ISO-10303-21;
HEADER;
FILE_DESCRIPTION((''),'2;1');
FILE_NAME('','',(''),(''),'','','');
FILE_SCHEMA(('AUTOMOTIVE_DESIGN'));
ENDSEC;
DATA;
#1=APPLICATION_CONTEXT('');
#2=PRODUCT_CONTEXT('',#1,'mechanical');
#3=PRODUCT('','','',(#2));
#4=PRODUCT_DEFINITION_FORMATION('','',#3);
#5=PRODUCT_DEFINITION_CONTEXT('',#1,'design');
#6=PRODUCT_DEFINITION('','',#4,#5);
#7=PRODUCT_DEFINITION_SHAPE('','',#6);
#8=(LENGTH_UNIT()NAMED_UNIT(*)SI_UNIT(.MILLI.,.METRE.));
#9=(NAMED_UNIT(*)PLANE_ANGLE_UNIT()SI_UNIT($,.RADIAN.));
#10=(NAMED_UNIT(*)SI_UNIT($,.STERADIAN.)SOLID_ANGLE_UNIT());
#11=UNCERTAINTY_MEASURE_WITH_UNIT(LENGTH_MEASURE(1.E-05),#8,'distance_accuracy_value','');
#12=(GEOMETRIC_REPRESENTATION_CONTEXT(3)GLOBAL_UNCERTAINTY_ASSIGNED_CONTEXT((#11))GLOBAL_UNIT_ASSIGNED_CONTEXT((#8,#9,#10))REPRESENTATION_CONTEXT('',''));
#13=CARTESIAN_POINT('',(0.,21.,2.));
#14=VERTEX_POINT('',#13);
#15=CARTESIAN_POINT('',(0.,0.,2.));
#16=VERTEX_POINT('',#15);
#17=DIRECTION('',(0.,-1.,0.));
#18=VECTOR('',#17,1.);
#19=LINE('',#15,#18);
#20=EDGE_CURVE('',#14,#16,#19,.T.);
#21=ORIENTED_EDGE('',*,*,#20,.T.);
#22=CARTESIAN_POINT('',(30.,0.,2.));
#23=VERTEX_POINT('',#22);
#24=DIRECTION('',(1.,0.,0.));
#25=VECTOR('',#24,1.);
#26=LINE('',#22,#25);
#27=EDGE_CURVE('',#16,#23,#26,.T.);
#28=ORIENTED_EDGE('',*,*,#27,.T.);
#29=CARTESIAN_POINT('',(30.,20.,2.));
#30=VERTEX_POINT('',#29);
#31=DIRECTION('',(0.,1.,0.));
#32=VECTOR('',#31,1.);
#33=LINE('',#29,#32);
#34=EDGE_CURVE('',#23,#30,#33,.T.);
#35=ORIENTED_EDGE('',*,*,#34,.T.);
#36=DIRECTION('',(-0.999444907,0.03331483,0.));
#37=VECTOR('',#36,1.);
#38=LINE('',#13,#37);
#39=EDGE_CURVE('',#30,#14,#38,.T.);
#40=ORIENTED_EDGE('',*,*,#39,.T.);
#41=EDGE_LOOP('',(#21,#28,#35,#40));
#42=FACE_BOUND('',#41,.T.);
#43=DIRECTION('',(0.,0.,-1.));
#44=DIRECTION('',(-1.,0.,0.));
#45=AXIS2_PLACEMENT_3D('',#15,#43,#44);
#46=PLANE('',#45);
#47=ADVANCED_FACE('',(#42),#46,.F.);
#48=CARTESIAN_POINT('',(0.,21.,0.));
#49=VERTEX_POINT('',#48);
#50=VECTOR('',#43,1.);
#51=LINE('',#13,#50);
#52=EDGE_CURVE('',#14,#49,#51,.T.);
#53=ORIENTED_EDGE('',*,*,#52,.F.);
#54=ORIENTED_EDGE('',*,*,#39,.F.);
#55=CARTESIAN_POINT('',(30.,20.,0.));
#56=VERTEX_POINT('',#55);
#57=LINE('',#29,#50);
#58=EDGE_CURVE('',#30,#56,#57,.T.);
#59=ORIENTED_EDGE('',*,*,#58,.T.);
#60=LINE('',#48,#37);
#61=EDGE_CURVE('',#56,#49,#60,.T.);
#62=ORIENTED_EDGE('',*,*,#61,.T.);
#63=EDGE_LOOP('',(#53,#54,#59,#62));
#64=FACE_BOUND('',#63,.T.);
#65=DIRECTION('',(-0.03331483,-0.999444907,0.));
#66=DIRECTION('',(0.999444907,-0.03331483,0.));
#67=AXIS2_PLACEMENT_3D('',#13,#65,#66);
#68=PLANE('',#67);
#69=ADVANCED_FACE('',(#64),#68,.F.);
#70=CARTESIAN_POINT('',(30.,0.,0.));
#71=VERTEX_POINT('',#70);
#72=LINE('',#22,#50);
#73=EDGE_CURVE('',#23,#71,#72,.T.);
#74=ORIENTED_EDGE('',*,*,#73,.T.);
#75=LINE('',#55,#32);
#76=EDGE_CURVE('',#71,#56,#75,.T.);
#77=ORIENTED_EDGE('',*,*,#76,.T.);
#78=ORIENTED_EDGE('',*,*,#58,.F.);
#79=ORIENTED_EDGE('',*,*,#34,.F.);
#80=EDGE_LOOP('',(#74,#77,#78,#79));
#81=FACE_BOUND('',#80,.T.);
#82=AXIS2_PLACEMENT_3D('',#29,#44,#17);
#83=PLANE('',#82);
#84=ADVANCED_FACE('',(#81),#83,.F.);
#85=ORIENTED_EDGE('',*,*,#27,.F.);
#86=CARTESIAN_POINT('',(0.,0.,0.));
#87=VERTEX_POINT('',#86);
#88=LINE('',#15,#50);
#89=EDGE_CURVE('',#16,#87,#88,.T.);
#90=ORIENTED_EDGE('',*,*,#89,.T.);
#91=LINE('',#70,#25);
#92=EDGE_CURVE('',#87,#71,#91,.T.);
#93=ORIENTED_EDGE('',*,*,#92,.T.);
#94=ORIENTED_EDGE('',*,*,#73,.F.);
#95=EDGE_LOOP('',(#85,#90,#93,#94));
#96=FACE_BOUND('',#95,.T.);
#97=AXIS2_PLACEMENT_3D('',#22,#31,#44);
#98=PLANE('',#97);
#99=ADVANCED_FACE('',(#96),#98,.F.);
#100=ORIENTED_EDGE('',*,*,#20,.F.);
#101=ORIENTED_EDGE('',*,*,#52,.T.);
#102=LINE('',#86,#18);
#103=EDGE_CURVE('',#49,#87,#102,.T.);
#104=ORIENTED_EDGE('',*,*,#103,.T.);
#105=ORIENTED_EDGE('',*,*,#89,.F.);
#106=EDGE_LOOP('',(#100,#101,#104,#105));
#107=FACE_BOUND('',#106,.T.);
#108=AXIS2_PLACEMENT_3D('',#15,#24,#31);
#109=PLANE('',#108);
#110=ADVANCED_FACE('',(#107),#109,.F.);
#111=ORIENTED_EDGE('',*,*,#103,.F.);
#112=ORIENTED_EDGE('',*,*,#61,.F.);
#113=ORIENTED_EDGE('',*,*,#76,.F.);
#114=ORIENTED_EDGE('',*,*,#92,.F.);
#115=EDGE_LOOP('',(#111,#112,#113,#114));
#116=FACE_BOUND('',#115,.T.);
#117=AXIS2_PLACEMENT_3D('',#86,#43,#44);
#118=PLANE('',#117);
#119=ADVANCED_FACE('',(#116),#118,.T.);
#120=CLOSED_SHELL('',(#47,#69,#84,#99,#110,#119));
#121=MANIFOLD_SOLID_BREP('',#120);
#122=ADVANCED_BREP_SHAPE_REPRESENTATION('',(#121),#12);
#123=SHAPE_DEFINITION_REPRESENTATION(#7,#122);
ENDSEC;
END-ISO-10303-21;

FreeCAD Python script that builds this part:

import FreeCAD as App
import Part
import Sketcher
Q = App.Units.Quantity


def add_polygon(sketch, points):
    """Adds a closed chain of lines whose ends are joined by coincident constraints."""
    first, n = sketch.GeometryCount, len(points)
    for a, b in zip(points, points[1:] + points[:1]):
        sketch.addGeometry(Part.LineSegment(App.Vector(*a, 0), App.Vector(*b, 0)), False)
    for i in range(n):
        sketch.addConstraint(Sketcher.Constraint("Coincident", first + i, 2, first + (i + 1) % n, 1))

doc = App.newDocument("Part")
body = doc.addObject("PartDesign::Body", "Body")

sketch1 = body.newObject("Sketcher::SketchObject", "Sketch")
sketch1.AttachmentSupport = (doc.getObject("XY_Plane"), [""])
sketch1.MapMode = "FlatFace"
add_polygon(sketch1, [(0, 21), (0, 0), (30, 0), (30, 20)])
sketch1.addConstraint([
    Sketcher.Constraint("Vertical", 0),
    Sketcher.Constraint("Horizontal", 1),
    Sketcher.Constraint("Vertical", 2),
    Sketcher.Constraint("Coincident", 0, 2, -1, 1),
    Sketcher.Constraint("DistanceX", 1, 1, 1, 2, Q("30 mm")),
    Sketcher.Constraint("DistanceY", 0, 2, 0, 1, Q("21 mm")),
    Sketcher.Constraint("DistanceY", 2, 1, 2, 2, Q("20 mm")),
])
pad1 = body.newObject("PartDesign::Pad", "Pad")
pad1.Profile = sketch1
pad1.Length = 2

doc.recompute()
